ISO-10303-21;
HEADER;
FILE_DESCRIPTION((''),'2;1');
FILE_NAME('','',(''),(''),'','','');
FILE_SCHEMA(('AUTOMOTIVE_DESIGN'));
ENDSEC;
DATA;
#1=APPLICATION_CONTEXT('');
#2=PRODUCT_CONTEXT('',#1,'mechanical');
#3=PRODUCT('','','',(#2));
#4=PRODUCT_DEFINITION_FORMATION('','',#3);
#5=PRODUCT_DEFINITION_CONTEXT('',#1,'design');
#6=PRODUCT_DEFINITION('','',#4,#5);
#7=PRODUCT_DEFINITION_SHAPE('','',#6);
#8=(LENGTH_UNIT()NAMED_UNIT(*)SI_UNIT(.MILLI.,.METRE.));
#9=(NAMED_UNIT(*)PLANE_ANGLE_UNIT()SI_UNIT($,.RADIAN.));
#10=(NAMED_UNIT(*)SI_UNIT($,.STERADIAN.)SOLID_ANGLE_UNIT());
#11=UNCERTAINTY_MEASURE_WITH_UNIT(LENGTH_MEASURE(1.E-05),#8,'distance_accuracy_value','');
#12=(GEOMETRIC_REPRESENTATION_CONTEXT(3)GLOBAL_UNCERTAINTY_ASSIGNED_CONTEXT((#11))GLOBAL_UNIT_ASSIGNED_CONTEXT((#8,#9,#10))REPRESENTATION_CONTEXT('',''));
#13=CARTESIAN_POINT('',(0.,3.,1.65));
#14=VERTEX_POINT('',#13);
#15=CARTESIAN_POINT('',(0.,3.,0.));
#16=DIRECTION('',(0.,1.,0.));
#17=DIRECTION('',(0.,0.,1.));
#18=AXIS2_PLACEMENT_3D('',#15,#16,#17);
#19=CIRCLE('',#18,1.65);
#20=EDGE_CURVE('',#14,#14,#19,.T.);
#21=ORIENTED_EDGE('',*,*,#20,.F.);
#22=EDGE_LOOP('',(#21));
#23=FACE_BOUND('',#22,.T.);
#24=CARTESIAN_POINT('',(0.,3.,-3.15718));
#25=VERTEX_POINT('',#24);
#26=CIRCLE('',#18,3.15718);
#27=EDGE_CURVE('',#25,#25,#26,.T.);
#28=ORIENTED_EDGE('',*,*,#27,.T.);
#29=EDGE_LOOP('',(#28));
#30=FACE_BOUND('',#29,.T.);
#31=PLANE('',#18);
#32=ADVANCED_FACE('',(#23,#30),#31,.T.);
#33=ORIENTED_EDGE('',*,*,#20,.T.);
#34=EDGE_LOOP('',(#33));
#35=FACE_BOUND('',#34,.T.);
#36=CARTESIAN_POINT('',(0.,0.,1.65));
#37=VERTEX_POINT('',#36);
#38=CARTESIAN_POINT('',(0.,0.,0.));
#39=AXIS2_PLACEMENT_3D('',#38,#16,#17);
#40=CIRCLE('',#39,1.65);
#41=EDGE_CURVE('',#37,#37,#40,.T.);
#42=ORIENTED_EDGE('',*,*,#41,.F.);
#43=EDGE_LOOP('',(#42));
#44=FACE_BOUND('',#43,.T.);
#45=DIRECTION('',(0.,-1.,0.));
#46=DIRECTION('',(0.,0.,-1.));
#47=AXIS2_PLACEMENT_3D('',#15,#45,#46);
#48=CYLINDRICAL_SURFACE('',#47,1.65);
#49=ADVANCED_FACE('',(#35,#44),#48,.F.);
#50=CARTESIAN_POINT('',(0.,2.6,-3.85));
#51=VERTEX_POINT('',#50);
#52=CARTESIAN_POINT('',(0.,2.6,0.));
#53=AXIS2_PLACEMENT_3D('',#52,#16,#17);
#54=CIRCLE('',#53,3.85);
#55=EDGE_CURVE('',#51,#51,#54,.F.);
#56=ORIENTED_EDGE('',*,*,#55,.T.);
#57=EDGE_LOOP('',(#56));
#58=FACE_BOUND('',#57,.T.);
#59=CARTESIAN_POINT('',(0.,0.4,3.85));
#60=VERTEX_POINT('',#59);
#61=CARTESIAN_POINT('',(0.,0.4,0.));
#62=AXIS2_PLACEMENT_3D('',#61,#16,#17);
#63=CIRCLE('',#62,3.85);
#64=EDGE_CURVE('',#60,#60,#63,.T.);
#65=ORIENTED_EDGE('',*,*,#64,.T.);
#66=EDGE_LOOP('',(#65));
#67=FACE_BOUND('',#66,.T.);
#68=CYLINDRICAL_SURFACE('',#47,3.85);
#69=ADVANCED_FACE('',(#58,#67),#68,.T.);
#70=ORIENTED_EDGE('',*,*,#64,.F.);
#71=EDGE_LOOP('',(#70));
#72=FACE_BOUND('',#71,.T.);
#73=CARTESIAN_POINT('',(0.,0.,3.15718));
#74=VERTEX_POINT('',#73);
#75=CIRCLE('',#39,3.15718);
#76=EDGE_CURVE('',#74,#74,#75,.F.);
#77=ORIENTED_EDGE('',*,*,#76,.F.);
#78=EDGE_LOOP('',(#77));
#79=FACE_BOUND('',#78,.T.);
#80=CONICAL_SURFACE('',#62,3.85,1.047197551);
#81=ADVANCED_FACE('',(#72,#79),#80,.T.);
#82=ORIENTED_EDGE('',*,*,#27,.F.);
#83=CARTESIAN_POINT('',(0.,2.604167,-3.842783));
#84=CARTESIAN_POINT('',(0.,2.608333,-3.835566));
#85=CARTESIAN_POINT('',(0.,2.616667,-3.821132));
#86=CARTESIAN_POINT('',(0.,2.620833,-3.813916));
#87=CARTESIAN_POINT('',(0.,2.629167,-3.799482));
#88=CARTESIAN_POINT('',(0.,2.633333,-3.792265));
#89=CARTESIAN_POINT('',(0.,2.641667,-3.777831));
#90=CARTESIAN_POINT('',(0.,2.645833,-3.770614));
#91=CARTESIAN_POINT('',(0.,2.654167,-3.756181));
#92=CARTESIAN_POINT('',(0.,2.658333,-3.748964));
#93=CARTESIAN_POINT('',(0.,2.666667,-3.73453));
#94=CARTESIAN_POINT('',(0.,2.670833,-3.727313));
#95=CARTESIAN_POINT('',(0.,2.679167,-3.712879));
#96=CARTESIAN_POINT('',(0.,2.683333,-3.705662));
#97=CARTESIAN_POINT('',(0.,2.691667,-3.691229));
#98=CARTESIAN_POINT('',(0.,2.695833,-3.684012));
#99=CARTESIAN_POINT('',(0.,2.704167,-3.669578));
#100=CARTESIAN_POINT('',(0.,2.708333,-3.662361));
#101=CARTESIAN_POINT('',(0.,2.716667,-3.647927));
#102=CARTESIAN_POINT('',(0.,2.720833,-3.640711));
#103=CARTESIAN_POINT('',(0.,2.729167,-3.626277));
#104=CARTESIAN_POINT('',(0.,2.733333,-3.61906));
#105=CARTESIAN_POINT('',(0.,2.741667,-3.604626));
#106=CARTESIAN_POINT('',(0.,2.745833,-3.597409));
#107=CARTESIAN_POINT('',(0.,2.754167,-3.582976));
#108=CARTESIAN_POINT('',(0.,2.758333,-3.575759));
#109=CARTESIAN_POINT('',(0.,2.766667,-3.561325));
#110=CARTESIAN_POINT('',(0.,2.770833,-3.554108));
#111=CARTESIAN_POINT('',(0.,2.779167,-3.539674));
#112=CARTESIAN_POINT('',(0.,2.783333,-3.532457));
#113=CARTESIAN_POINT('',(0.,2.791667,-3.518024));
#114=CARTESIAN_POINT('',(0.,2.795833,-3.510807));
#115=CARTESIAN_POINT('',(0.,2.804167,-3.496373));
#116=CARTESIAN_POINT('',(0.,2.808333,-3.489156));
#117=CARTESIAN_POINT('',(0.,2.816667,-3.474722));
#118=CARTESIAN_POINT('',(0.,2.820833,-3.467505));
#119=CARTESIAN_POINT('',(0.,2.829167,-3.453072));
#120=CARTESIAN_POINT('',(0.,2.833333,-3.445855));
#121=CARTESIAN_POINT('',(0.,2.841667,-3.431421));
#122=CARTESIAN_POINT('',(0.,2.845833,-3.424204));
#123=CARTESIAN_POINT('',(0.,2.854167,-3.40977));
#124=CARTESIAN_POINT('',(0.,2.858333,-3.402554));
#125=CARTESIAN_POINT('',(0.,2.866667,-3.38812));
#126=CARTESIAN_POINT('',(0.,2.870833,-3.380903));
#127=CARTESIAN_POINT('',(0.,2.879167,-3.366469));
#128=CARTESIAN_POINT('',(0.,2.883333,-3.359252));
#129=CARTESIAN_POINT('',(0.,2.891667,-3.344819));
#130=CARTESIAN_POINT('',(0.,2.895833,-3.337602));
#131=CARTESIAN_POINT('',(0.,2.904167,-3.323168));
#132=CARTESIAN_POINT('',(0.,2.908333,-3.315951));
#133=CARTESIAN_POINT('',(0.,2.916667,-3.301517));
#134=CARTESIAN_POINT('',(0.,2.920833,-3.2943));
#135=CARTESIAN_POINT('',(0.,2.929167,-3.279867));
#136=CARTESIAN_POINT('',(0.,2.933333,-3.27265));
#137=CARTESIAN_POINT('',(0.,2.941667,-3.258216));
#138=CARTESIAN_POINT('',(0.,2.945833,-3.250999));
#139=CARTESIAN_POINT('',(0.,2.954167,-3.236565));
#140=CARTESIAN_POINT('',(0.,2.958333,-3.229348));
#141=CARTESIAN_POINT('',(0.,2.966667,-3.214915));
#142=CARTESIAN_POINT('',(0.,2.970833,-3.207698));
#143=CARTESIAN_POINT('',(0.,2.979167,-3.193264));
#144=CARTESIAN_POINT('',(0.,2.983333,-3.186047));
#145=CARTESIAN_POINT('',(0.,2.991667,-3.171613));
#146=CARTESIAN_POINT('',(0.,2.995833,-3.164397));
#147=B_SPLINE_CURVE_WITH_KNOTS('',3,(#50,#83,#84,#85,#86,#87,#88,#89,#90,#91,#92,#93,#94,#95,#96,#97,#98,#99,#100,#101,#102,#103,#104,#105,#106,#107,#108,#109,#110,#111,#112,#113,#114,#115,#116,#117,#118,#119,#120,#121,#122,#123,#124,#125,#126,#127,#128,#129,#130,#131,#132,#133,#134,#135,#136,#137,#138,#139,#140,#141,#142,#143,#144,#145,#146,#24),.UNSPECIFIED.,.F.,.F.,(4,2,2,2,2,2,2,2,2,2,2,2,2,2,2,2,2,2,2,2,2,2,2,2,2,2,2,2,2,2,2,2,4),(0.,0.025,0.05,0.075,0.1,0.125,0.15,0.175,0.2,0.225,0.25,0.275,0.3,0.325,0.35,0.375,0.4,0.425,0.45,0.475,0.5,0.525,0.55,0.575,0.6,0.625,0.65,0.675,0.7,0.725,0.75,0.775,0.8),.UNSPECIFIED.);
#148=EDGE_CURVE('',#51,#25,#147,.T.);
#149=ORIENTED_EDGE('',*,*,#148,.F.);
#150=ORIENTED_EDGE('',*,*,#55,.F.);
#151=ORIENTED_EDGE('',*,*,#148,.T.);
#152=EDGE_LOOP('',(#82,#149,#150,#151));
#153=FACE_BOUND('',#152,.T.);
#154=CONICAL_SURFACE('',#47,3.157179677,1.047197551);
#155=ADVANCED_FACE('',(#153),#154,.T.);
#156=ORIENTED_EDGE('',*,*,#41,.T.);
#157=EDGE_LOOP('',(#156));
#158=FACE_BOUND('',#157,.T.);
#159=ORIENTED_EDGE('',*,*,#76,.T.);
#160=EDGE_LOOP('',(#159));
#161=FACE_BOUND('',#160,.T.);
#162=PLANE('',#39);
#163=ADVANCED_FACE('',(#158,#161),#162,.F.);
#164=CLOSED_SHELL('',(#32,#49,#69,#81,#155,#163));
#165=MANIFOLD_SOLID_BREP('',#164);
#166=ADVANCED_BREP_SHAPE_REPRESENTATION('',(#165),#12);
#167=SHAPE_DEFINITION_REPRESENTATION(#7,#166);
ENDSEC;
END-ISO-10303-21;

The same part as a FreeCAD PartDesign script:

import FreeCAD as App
import Part
import Sketcher

V = App.Vector


def edges_at(feature, points):
    """Names of the edges that pass closest to the given points."""
    edges = feature.Shape.Edges
    near = lambda p: min(range(len(edges)), key=lambda i: edges[i].distToShape(Part.Vertex(*p))[0])
    return sorted({f"Edge{near(p) + 1}" for p in points})

doc = App.newDocument("Part")
body = doc.addObject("PartDesign::Body", "Body")

sketch1 = body.newObject("Sketcher::SketchObject", "Sketch")
sketch1.AttachmentSupport = (doc.getObject("XZ_Plane"), [""])
sketch1.MapMode = "FlatFace"
sketch1.addGeometry([
    Part.Circle(V(0, 0, 0), V(0, 0, 1), 3.85),
    Part.Circle(V(0, 0, 0), V(0, 0, 1), 1.65),
], False)
sketch1.addConstraint([
    Sketcher.Constraint("Coincident", 0, 3, -1, 1),
    Sketcher.Constraint("Coincident", 1, 3, -1, 1),
    Sketcher.Constraint("Diameter", 0, 7.7),
    Sketcher.Constraint("Diameter", 1, 3.3),
])
pad1 = body.newObject("PartDesign::Pad", "Pad")
pad1.Profile = sketch1
pad1.Length = 3
pad1.Reversed = True
doc.recompute()

chamfer = body.newObject("PartDesign::Chamfer", "Chamfer")
chamfer.Base = (pad1, edges_at(pad1, [(0, 3, -3.85)]))
chamfer.ChamferType = "Two distances"
chamfer.Size = 0.4
chamfer.Size2 = 0.69282
doc.recompute()

chamfer2 = body.newObject("PartDesign::Chamfer", "Chamfer001")
chamfer2.Base = (chamfer, edges_at(chamfer, [(0, 0, -3.85)]))
chamfer2.ChamferType = "Two distances"
chamfer2.Size = 0.4
chamfer2.Size2 = 0.69282

doc.recompute()
